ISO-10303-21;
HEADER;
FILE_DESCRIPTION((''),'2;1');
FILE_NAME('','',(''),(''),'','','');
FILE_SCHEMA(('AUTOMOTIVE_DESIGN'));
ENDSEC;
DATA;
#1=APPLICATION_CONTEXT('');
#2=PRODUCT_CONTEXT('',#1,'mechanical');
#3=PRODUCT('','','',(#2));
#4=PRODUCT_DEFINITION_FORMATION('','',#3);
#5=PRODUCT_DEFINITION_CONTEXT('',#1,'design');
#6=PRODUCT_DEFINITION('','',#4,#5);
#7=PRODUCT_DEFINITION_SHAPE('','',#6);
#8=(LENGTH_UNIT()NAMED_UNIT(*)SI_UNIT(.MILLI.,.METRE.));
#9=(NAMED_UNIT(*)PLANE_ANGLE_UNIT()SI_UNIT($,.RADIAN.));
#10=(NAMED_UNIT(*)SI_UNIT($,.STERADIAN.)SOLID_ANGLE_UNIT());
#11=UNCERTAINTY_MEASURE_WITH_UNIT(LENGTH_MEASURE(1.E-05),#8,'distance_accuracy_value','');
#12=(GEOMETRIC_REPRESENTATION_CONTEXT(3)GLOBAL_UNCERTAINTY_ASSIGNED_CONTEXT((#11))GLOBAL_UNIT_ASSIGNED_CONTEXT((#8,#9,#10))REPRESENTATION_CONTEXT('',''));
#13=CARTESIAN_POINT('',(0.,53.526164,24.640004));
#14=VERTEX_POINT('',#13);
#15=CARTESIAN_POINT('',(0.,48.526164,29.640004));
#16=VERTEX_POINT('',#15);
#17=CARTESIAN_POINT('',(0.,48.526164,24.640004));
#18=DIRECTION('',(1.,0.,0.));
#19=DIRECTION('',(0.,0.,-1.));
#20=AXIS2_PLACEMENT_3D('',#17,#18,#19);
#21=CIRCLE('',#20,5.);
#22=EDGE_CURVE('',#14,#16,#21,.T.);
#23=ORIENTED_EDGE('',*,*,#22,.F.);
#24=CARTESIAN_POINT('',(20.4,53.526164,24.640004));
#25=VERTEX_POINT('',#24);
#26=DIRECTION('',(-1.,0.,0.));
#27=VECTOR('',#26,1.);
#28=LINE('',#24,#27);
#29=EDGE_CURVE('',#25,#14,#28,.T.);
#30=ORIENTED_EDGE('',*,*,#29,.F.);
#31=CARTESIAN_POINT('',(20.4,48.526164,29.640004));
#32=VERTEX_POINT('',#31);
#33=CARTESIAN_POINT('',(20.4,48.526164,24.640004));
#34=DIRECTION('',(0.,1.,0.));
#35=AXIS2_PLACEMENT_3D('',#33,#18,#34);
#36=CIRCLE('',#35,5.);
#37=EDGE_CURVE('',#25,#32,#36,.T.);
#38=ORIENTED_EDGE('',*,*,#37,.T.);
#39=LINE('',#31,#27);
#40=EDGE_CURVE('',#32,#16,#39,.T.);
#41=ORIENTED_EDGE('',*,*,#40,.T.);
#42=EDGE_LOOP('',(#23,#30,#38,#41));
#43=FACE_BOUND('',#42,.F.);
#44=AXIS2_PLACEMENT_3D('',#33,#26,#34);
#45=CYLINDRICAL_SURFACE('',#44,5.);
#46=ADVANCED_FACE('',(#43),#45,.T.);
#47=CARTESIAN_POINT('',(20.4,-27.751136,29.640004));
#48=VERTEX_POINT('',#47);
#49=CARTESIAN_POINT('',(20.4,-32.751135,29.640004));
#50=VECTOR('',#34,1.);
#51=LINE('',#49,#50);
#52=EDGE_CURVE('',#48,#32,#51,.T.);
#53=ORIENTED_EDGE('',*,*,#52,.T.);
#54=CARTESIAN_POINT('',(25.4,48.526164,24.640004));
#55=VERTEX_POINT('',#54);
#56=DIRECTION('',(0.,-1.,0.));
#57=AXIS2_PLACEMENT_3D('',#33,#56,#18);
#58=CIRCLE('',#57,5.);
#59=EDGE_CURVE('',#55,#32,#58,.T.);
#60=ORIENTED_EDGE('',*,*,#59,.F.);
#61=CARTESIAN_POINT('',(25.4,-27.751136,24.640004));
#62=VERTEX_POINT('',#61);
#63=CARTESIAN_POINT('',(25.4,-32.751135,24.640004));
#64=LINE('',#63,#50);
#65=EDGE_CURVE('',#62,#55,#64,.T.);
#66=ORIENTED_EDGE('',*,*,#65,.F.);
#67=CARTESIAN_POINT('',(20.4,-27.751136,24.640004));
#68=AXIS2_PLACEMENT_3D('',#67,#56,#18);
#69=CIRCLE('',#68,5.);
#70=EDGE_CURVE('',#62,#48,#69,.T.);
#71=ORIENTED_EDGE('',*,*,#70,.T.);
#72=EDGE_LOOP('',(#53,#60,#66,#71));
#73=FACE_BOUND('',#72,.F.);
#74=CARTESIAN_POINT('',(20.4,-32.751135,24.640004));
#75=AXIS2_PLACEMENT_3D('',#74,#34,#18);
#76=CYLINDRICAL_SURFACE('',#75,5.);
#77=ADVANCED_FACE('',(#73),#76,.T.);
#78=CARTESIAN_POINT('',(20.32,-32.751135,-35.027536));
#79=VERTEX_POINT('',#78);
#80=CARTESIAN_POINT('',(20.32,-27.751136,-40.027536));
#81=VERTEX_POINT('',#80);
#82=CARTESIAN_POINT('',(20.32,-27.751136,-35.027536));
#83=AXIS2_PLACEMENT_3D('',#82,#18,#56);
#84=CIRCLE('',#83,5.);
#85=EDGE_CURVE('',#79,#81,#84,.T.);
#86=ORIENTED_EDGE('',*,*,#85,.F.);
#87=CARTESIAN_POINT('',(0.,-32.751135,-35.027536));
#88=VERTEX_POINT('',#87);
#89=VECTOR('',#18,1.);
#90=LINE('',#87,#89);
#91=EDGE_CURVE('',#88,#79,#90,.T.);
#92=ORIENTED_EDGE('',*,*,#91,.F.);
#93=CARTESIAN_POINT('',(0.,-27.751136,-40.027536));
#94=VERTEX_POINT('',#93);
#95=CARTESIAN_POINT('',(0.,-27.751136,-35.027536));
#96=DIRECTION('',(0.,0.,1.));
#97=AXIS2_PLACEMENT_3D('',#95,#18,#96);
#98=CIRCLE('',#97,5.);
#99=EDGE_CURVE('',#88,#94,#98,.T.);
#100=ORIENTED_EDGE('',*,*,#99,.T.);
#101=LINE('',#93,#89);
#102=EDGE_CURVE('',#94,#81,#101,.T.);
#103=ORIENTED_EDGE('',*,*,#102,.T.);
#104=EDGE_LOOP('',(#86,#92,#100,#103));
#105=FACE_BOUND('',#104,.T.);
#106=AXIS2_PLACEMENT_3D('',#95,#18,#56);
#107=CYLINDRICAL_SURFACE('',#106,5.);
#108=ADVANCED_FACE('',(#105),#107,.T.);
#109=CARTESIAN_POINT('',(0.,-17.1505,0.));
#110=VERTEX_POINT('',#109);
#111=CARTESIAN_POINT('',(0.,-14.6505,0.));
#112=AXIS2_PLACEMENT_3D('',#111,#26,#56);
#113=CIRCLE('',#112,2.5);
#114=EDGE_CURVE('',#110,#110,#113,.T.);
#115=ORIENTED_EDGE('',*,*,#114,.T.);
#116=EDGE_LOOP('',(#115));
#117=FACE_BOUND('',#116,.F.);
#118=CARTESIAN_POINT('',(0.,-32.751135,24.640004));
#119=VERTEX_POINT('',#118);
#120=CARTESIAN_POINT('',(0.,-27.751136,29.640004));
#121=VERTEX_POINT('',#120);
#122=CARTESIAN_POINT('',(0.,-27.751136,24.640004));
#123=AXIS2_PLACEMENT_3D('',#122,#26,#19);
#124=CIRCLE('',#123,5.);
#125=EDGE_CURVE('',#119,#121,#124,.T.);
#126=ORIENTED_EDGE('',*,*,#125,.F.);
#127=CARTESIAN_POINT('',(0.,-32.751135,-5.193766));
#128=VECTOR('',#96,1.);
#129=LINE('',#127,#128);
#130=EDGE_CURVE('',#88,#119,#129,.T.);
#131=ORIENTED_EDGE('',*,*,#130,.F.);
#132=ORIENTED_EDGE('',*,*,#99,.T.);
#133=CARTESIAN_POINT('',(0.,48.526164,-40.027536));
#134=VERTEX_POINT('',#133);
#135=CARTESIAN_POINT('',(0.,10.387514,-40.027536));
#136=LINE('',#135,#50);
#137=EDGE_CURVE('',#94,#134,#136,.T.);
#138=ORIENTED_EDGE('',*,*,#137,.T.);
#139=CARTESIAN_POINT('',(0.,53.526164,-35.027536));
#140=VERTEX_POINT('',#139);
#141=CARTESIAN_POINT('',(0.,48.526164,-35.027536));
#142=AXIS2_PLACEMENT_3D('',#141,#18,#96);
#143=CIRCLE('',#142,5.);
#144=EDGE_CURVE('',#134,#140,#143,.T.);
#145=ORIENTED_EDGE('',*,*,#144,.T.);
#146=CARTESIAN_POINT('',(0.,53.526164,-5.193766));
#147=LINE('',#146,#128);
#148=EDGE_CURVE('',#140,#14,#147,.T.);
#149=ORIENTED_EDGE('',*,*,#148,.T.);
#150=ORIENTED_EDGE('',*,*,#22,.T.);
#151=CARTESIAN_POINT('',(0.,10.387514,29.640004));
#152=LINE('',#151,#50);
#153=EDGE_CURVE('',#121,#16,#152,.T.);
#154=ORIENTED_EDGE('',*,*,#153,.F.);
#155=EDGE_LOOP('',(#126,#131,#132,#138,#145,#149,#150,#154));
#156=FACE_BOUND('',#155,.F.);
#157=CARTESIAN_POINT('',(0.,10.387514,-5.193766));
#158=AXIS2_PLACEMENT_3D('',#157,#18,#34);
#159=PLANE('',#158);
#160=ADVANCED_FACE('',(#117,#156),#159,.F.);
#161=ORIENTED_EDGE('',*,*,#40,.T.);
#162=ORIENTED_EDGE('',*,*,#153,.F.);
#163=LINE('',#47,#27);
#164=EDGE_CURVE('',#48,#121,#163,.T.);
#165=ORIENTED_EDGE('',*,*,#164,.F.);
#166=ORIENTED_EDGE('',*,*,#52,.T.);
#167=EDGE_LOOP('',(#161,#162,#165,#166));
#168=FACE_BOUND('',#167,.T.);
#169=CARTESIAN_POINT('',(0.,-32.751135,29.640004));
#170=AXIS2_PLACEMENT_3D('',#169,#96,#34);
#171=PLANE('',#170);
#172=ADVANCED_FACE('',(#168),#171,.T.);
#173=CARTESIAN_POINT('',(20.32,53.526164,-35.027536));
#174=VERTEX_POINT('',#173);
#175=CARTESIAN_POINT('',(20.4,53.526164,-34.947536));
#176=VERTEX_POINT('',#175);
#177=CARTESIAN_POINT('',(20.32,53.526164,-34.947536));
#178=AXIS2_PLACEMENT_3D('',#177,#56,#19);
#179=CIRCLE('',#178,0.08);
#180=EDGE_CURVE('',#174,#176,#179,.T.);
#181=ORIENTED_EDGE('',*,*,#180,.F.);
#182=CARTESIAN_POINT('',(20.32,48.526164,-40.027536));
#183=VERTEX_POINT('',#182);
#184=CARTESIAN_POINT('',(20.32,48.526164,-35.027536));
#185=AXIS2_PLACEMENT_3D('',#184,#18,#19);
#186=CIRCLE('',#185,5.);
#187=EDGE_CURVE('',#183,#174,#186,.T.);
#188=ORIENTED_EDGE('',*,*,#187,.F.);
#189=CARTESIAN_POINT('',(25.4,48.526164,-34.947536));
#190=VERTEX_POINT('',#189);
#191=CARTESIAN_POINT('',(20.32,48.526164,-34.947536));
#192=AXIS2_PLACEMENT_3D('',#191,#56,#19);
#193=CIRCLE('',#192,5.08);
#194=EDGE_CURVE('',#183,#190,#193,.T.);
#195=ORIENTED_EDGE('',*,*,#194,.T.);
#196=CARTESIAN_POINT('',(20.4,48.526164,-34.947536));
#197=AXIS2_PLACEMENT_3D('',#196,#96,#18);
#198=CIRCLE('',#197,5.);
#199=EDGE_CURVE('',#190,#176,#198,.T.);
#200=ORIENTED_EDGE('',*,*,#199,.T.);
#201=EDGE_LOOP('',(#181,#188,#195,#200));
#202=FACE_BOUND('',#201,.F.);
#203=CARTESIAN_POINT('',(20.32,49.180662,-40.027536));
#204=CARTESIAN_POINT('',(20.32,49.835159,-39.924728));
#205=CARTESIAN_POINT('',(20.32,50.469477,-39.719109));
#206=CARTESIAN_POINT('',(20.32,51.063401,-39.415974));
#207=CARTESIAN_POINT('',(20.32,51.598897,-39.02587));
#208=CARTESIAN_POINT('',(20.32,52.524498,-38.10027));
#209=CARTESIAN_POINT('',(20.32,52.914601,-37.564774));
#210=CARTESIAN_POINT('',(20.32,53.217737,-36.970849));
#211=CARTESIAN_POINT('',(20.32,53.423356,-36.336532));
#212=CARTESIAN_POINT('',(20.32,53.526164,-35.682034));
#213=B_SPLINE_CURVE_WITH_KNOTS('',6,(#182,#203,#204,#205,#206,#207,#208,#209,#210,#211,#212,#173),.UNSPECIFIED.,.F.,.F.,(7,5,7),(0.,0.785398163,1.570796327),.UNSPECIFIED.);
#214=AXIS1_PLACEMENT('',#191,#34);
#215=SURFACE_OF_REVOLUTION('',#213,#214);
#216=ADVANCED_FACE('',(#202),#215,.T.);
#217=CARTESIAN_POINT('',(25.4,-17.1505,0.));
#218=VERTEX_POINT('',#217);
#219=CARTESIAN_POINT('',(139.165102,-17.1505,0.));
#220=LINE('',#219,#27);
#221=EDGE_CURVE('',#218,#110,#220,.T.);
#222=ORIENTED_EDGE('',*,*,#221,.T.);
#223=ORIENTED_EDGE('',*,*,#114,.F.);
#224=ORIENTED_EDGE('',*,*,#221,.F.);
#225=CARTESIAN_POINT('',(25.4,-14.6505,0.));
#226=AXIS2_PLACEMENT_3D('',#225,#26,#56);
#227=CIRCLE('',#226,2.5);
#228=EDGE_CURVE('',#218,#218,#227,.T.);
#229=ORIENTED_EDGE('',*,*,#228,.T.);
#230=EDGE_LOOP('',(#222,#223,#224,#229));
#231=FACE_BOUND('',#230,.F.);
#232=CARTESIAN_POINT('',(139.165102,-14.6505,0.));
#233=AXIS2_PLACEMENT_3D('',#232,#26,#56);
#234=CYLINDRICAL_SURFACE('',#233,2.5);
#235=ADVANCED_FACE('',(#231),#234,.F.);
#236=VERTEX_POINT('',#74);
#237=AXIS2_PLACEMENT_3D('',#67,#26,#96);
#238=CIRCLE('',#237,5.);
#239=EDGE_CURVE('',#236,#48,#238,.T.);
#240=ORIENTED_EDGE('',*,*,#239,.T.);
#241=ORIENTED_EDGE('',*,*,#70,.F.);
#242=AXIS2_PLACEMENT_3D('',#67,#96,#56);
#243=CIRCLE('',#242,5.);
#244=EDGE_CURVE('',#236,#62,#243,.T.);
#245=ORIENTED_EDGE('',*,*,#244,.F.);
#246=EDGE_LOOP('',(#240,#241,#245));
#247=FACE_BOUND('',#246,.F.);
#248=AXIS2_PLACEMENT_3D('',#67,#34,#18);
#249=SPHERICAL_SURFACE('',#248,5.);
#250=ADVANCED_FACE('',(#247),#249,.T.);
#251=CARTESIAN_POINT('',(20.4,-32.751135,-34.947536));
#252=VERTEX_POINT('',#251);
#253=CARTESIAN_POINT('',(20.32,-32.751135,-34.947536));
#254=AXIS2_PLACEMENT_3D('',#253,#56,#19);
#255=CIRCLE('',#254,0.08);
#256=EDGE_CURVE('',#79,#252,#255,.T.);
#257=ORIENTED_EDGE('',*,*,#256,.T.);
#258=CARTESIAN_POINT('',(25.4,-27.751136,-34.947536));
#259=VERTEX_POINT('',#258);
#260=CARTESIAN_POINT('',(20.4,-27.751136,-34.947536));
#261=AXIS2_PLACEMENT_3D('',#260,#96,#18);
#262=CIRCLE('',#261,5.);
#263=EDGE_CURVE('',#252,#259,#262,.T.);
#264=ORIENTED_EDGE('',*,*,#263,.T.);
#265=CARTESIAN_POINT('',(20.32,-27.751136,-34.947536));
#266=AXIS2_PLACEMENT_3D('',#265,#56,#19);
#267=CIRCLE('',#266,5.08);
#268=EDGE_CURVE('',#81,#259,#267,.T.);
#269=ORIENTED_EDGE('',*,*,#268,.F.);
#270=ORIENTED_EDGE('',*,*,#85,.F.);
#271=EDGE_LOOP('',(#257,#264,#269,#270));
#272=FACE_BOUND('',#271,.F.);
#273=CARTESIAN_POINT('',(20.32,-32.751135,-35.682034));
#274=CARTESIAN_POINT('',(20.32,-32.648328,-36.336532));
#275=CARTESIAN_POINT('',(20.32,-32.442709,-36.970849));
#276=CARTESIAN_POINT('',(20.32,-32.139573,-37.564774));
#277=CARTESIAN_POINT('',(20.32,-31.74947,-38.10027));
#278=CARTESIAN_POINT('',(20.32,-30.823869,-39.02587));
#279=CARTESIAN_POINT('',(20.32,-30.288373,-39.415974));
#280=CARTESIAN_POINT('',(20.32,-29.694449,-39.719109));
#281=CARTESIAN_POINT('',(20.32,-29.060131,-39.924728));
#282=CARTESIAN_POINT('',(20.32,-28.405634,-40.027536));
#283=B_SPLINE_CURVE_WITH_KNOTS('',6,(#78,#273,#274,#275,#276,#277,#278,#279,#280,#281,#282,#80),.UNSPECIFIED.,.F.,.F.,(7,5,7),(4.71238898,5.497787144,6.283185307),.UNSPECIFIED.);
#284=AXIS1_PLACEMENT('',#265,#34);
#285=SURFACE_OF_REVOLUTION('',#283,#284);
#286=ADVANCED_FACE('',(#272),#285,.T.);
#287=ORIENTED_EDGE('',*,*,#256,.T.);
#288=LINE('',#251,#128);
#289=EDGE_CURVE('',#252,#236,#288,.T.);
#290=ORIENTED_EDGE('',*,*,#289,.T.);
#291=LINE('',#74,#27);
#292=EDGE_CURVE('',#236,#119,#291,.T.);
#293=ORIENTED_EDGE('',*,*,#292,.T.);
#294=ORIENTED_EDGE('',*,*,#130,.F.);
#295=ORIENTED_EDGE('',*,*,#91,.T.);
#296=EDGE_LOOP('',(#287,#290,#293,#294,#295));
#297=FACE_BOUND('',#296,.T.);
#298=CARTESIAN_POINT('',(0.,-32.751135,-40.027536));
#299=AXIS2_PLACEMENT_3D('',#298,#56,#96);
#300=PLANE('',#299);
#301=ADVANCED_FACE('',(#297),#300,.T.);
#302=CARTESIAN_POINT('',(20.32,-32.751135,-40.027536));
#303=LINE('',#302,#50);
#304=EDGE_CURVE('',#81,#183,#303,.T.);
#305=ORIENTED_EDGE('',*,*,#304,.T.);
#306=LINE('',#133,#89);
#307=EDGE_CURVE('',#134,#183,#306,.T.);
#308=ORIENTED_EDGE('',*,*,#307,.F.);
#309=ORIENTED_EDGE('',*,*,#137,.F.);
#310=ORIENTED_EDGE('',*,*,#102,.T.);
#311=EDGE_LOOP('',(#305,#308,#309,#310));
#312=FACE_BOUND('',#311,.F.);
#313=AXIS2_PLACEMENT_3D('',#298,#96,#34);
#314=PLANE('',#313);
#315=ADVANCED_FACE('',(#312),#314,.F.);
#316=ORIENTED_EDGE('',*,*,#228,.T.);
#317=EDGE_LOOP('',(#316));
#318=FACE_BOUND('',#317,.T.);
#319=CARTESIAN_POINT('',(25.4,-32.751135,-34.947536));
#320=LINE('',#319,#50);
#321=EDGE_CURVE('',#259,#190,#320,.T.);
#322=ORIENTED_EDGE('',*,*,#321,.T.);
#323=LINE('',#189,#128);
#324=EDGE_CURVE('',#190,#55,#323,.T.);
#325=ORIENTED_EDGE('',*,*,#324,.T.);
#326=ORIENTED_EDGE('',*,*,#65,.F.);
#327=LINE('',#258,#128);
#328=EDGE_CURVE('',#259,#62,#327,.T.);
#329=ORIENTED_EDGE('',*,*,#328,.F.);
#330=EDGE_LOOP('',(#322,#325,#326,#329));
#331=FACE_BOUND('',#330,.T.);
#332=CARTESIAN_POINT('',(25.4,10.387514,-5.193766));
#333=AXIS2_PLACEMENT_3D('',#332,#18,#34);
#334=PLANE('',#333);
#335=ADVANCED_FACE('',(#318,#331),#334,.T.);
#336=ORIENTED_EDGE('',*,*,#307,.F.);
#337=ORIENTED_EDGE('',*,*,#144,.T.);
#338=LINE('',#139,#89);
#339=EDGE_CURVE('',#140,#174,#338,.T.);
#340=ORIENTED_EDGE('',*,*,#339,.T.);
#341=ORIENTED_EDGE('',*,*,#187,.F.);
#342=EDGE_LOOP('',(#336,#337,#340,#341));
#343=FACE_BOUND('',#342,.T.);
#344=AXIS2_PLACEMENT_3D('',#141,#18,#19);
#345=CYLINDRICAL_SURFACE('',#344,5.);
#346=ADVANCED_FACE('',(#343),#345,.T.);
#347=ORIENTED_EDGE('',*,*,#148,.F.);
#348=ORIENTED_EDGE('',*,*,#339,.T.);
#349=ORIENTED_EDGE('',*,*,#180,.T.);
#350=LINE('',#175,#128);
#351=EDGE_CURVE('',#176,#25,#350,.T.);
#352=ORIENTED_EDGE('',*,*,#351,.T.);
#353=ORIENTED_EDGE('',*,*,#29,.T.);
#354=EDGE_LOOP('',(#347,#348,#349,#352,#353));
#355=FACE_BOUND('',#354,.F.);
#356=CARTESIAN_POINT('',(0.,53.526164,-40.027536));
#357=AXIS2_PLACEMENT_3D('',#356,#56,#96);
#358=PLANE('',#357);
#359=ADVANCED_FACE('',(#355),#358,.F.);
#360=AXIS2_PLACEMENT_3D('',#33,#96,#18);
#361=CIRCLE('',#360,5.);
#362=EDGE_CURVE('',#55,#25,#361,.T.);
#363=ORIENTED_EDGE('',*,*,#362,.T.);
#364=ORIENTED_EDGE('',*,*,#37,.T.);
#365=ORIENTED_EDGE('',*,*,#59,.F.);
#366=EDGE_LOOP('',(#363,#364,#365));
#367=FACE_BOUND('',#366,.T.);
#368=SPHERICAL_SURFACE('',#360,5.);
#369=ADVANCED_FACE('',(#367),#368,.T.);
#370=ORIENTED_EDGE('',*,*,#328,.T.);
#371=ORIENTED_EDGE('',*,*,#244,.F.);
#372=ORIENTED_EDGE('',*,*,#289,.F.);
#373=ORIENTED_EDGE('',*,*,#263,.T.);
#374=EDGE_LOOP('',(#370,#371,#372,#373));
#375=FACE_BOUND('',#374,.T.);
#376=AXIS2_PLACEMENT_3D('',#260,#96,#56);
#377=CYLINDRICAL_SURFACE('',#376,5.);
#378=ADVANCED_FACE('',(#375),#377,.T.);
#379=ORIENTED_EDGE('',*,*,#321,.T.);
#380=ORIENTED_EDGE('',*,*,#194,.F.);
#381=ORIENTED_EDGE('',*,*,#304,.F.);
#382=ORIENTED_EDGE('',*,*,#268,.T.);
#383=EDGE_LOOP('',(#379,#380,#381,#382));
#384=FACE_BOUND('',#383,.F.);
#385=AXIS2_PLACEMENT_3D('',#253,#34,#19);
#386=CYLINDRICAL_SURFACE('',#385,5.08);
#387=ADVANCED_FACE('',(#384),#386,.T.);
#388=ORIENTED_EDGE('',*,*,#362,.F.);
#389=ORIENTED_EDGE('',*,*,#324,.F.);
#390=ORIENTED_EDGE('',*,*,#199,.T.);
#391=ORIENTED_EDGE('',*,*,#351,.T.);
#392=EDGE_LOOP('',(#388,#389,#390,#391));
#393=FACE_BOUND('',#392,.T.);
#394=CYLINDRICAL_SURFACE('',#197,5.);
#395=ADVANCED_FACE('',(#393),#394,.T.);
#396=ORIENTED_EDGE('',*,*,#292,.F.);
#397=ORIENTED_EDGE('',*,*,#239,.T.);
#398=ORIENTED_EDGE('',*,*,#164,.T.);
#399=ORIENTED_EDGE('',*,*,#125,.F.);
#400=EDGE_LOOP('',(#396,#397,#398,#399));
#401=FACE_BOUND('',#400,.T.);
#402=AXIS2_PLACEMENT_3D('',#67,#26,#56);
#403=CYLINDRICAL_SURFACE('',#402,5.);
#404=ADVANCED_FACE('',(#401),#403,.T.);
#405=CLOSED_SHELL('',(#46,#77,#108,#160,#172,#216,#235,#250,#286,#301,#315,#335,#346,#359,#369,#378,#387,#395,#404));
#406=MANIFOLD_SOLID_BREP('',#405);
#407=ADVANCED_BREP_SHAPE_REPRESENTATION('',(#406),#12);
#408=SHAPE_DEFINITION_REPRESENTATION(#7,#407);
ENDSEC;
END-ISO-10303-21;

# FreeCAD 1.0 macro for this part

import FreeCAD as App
import Part
import Sketcher
from FreeCAD import Vector
Q = App.Units.Quantity


def edges_at(feature, points):
    """Names of the edges that pass closest to the given points."""
    edges = feature.Shape.Edges
    near = lambda p: min(range(len(edges)), key=lambda i: edges[i].distToShape(Part.Vertex(*p))[0])
    return sorted({f"Edge{near(p) + 1}" for p in points})

doc = App.newDocument("Part")
params = doc.addObject("Spreadsheet::Sheet", "Params")
for row, (alias, value) in enumerate([
    ("pad1_length", "1 in"),
    ("fillet_radius", "0.2 in"),
    ("fillet2_radius", "5 mm"),
    ("fillet3_radius", "5 mm"),
    ("fillet4_radius", "5 mm"),
    ("hole_diameter", "5 mm"),
], start=1):
    params.set(f"A{row}", alias)
    params.set(f"B{row}", "=" + value)
    params.setAlias(f"B{row}", alias)

body = doc.addObject("PartDesign::Body", "Body")

# Sketch on YZ plane
sketch1 = body.newObject("Sketcher::SketchObject", "Sketch")
sketch1.AttachmentSupport = (doc.getObject("YZ_Plane"), [""])
sketch1.MapMode = "FlatFace"
sketch1.addGeometry([
    Part.LineSegment(Vector(-33, 30, 0), Vector(-33, -40, 0)),
    Part.LineSegment(Vector(-33, -40, 0), Vector(54, -40, 0)),
    Part.LineSegment(Vector(54, -40, 0), Vector(54, 30, 0)),
    Part.LineSegment(Vector(54, 30, 0), Vector(-33, 30, 0)),
], False)
sketch1.addConstraint([
    Sketcher.Constraint("Coincident", 0, 2, 1, 1),
    Sketcher.Constraint("Coincident", 1, 2, 2, 1),
    Sketcher.Constraint("Coincident", 2, 2, 3, 1),
    Sketcher.Constraint("Coincident", 3, 2, 0, 1),
    Sketcher.Constraint("Vertical", 0),
    Sketcher.Constraint("Horizontal", 1),
    Sketcher.Constraint("Vertical", 2),
    Sketcher.Constraint("Horizontal", 3),
    Sketcher.Constraint("DistanceX", 1, 1, 1, 2, Q("86.277299 mm")),
    Sketcher.Constraint("DistanceY", 0, 2, 0, 1, Q("69.66754 mm")),
    Sketcher.Constraint("DistanceX", 0, 2, -1, 1, Q("32.751135 mm")),
    Sketcher.Constraint("DistanceY", 0, 2, -1, 1, Q("40.027536 mm")),
])
pad1 = body.newObject("PartDesign::Pad", "Pad")
pad1.Profile = sketch1
pad1.setExpression("Length", "Params.pad1_length")
doc.recompute()

fillet = body.newObject("PartDesign::Fillet", "Fillet")
fillet.Base = (pad1, edges_at(pad1, [(25.4, 10.388, -40.028)]))
fillet.setExpression("Radius", "Params.fillet_radius")
doc.recompute()

fillet2 = body.newObject("PartDesign::Fillet", "Fillet001")
fillet2.Base = (fillet, edges_at(fillet, [(25.4, 53.526, -2.654)]))
fillet2.setExpression("Radius", "Params.fillet2_radius")
doc.recompute()

fillet3 = body.newObject("PartDesign::Fillet", "Fillet002")
fillet3.Base = (fillet2, edges_at(fillet2, [(25.4, 7.888, 29.64)]))
fillet3.setExpression("Radius", "Params.fillet3_radius")
doc.recompute()

fillet4 = body.newObject("PartDesign::Fillet", "Fillet003")
fillet4.Base = (fillet3, edges_at(fillet3, [(25.4, -32.751, -5.154)]))
fillet4.setExpression("Radius", "Params.fillet4_radius")

# Sketch on YZ plane
sketch2 = body.newObject("Sketcher::SketchObject", "Sketch001")
sketch2.AttachmentSupport = (doc.getObject("YZ_Plane"), [""])
sketch2.MapMode = "FlatFace"
sketch2.AttachmentOffset = App.Placement(Vector(0, 0, 1 * 25.4), App.Rotation())
sketch2.addGeometry(Part.Circle(Vector(-14.7, 0, 0), Vector(0, 0, 1), 2.5), False)
sketch2.addConstraint([
    Sketcher.Constraint("PointOnObject", 0, 3, -1),
    Sketcher.Constraint("Diameter", 0, Q("5 mm")),
    Sketcher.Constraint("DistanceX", 0, 3, -1, 1, Q("14.6505 mm")),
])
doc.recompute()
hole = body.newObject("PartDesign::Hole", "Hole")
hole.Profile = sketch2
hole.ThreadType = "None"
hole.setExpression("Diameter", "Params.hole_diameter")
hole.DepthType = "ThroughAll"

doc.recompute()
